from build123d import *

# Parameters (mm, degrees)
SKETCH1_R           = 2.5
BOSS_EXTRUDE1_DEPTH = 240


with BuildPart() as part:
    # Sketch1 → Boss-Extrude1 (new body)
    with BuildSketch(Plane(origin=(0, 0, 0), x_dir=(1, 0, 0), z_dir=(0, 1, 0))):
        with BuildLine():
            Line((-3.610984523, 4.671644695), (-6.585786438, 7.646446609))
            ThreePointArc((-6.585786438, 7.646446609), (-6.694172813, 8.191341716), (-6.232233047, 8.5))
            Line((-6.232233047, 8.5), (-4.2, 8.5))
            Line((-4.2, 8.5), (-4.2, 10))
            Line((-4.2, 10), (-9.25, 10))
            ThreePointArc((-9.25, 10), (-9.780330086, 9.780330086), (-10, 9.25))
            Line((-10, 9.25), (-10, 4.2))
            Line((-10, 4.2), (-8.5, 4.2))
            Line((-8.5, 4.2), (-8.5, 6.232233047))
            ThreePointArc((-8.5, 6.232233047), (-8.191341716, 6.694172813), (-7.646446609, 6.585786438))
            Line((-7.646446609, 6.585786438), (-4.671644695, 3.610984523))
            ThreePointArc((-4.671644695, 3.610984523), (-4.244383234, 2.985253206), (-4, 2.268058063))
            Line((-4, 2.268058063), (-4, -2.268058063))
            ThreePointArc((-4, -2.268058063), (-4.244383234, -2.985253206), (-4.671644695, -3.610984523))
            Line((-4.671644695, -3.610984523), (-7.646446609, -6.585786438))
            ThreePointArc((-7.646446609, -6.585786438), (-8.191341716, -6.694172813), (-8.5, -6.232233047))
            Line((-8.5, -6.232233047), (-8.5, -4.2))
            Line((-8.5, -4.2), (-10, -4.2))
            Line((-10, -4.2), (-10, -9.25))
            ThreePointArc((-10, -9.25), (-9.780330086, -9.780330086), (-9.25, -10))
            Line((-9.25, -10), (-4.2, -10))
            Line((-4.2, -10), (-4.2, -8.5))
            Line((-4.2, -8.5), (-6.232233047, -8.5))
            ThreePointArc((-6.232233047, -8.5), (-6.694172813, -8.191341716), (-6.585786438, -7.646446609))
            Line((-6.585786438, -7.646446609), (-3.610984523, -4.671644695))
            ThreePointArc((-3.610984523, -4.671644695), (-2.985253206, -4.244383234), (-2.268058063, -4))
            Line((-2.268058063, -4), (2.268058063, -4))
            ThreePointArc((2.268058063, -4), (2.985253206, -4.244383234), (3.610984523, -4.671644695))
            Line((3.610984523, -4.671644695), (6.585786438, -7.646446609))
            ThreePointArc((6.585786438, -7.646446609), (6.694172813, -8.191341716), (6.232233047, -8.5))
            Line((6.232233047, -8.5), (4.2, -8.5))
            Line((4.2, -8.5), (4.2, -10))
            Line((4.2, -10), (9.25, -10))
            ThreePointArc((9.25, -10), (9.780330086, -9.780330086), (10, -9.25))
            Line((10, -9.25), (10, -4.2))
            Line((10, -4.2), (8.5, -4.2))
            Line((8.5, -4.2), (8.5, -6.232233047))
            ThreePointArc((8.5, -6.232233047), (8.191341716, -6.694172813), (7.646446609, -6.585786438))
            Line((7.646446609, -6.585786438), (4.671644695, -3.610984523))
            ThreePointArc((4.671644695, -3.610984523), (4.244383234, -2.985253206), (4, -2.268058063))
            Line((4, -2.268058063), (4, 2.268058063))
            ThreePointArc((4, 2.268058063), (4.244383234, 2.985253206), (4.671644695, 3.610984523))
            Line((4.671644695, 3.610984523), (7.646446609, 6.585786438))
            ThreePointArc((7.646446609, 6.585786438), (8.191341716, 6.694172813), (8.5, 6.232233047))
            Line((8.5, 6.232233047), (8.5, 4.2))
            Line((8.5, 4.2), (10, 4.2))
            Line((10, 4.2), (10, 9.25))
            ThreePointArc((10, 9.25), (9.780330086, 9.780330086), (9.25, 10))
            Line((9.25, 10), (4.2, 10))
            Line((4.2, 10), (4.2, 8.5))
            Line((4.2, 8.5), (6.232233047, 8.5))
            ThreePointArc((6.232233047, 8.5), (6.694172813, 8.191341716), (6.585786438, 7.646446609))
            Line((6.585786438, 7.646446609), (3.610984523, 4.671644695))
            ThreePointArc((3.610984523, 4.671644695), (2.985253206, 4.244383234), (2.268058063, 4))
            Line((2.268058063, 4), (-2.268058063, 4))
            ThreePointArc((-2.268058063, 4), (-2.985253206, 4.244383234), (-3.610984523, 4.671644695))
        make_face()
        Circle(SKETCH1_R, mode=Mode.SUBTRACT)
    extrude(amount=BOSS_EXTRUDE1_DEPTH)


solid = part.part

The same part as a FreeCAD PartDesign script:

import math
import FreeCAD as App
import Part
import Sketcher

doc = App.newDocument("Part")
body = doc.addObject("PartDesign::Body", "Body")

# Sketch on XZ plane
sketch1 = body.newObject("Sketcher::SketchObject", "Sketch")
sketch1.AttachmentSupport = (doc.getObject("XZ_Plane"), [""])
sketch1.MapMode = "FlatFace"
sketch1.addGeometry([
    Part.LineSegment(App.Vector(-3.610985, -4.671645, 0), App.Vector(-6.585786, -7.646447, 0)),  # 0
    Part.ArcOfCircle(Part.Circle(App.Vector(-6.232233, -8, 0), App.Vector(0, 0, 1), 0.5), math.radians(135), math.radians(270)),  # 1
    Part.LineSegment(App.Vector(-6.232233, -8.5, 0), App.Vector(-4.2, -8.5, 0)),  # 2
    Part.LineSegment(App.Vector(-4.2, -8.5, 0), App.Vector(-4.2, -10, 0)),  # 3
    Part.LineSegment(App.Vector(-4.2, -10, 0), App.Vector(-9.25, -10, 0)),  # 4
    Part.ArcOfCircle(Part.Circle(App.Vector(-9.25, -9.25, 0), App.Vector(0, 0, 1), 0.75), math.radians(180), math.radians(270)),  # 5
    Part.LineSegment(App.Vector(-10, -9.25, 0), App.Vector(-10, -4.2, 0)),  # 6
    Part.LineSegment(App.Vector(-10, -4.2, 0), App.Vector(-8.5, -4.2, 0)),  # 7
    Part.LineSegment(App.Vector(-8.5, -4.2, 0), App.Vector(-8.5, -6.232233, 0)),  # 8
    Part.ArcOfCircle(Part.Circle(App.Vector(-8, -6.232233, 0), App.Vector(0, 0, 1), 0.5), math.radians(-180), math.radians(-45)),  # 9
    Part.LineSegment(App.Vector(-7.646447, -6.585786, 0), App.Vector(-4.671645, -3.610985, 0)),  # 10
    Part.ArcOfCircle(Part.Circle(App.Vector(-6.755475, -1.729368, 0), App.Vector(0, 0, 1), 2.807638), math.radians(-42.080792), math.radians(-11.061698)),  # 11
    Part.LineSegment(App.Vector(-4, -2.268058, 0), App.Vector(-4, 2.268058, 0)),  # 12
    Part.ArcOfCircle(Part.Circle(App.Vector(-6.755475, 1.729368, 0), App.Vector(0, 0, 1), 2.807638), math.radians(11.061698), math.radians(42.080792)),  # 13
    Part.LineSegment(App.Vector(-4.671645, 3.610985, 0), App.Vector(-7.646447, 6.585786, 0)),  # 14
    Part.ArcOfCircle(Part.Circle(App.Vector(-8, 6.232233, 0), App.Vector(0, 0, 1), 0.5), math.radians(45), math.radians(180)),  # 15
    Part.LineSegment(App.Vector(-8.5, 6.232233, 0), App.Vector(-8.5, 4.2, 0)),  # 16
    Part.LineSegment(App.Vector(-8.5, 4.2, 0), App.Vector(-10, 4.2, 0)),  # 17
    Part.LineSegment(App.Vector(-10, 4.2, 0), App.Vector(-10, 9.25, 0)),  # 18
    Part.ArcOfCircle(Part.Circle(App.Vector(-9.25, 9.25, 0), App.Vector(0, 0, 1), 0.75), math.radians(90), math.radians(180)),  # 19
    Part.LineSegment(App.Vector(-9.25, 10, 0), App.Vector(-4.2, 10, 0)),  # 20
    Part.LineSegment(App.Vector(-4.2, 10, 0), App.Vector(-4.2, 8.5, 0)),  # 21
    Part.LineSegment(App.Vector(-4.2, 8.5, 0), App.Vector(-6.232233, 8.5, 0)),  # 22
    Part.ArcOfCircle(Part.Circle(App.Vector(-6.232233, 8, 0), App.Vector(0, 0, 1), 0.5), math.radians(90), math.radians(225)),  # 23
    Part.LineSegment(App.Vector(-6.585786, 7.646447, 0), App.Vector(-3.610985, 4.671645, 0)),  # 24
    Part.ArcOfCircle(Part.Circle(App.Vector(-1.729368, 6.755475, 0), App.Vector(0, 0, 1), 2.807638), math.radians(-132.080792), math.radians(-101.061698)),  # 25
    Part.LineSegment(App.Vector(-2.268058, 4, 0), App.Vector(2.268058, 4, 0)),  # 26
    Part.ArcOfCircle(Part.Circle(App.Vector(1.729368, 6.755475, 0), App.Vector(0, 0, 1), 2.807638), math.radians(-78.938302), math.radians(-47.919208)),  # 27
    Part.LineSegment(App.Vector(3.610985, 4.671645, 0), App.Vector(6.585786, 7.646447, 0)),  # 28
    Part.ArcOfCircle(Part.Circle(App.Vector(6.232233, 8, 0), App.Vector(0, 0, 1), 0.5), math.radians(-45), math.radians(90)),  # 29
    Part.LineSegment(App.Vector(6.232233, 8.5, 0), App.Vector(4.2, 8.5, 0)),  # 30
    Part.LineSegment(App.Vector(4.2, 8.5, 0), App.Vector(4.2, 10, 0)),  # 31
    Part.LineSegment(App.Vector(4.2, 10, 0), App.Vector(9.25, 10, 0)),  # 32
    Part.ArcOfCircle(Part.Circle(App.Vector(9.25, 9.25, 0), App.Vector(0, 0, 1), 0.75), math.radians(0), math.radians(90)),  # 33
    Part.LineSegment(App.Vector(10, 9.25, 0), App.Vector(10, 4.2, 0)),  # 34
    Part.LineSegment(App.Vector(10, 4.2, 0), App.Vector(8.5, 4.2, 0)),  # 35
    Part.LineSegment(App.Vector(8.5, 4.2, 0), App.Vector(8.5, 6.232233, 0)),  # 36
    Part.ArcOfCircle(Part.Circle(App.Vector(8, 6.232233, 0), App.Vector(0, 0, 1), 0.5), math.radians(0), math.radians(135)),  # 37
    Part.LineSegment(App.Vector(7.646447, 6.585786, 0), App.Vector(4.671645, 3.610985, 0)),  # 38
    Part.ArcOfCircle(Part.Circle(App.Vector(6.755475, 1.729368, 0), App.Vector(0, 0, 1), 2.807638), math.radians(137.919208), math.radians(168.938302)),  # 39
    Part.LineSegment(App.Vector(4, 2.268058, 0), App.Vector(4, -2.268058, 0)),  # 40
    Part.ArcOfCircle(Part.Circle(App.Vector(6.755475, -1.729368, 0), App.Vector(0, 0, 1), 2.807638), math.radians(-168.938302), math.radians(-137.919208)),  # 41
    Part.LineSegment(App.Vector(4.671645, -3.610985, 0), App.Vector(7.646447, -6.585786, 0)),  # 42
    Part.ArcOfCircle(Part.Circle(App.Vector(8, -6.232233, 0), App.Vector(0, 0, 1), 0.5), math.radians(-135), math.radians(0)),  # 43
    Part.LineSegment(App.Vector(8.5, -6.232233, 0), App.Vector(8.5, -4.2, 0)),  # 44
    Part.LineSegment(App.Vector(8.5, -4.2, 0), App.Vector(10, -4.2, 0)),  # 45
    Part.LineSegment(App.Vector(10, -4.2, 0), App.Vector(10, -9.25, 0)),  # 46
    Part.ArcOfCircle(Part.Circle(App.Vector(9.25, -9.25, 0), App.Vector(0, 0, 1), 0.75), math.radians(-90), math.radians(0)),  # 47
    Part.LineSegment(App.Vector(9.25, -10, 0), App.Vector(4.2, -10, 0)),  # 48
    Part.LineSegment(App.Vector(4.2, -10, 0), App.Vector(4.2, -8.5, 0)),  # 49
    Part.LineSegment(App.Vector(4.2, -8.5, 0), App.Vector(6.232233, -8.5, 0)),  # 50
    Part.ArcOfCircle(Part.Circle(App.Vector(6.232233, -8, 0), App.Vector(0, 0, 1), 0.5), math.radians(-90), math.radians(45)),  # 51
    Part.LineSegment(App.Vector(6.585786, -7.646447, 0), App.Vector(3.610985, -4.671645, 0)),  # 52
    Part.ArcOfCircle(Part.Circle(App.Vector(1.729368, -6.755475, 0), App.Vector(0, 0, 1), 2.807638), math.radians(47.919208), math.radians(78.938302)),  # 53
    Part.LineSegment(App.Vector(2.268058, -4, 0), App.Vector(-2.268058, -4, 0)),  # 54
    Part.ArcOfCircle(Part.Circle(App.Vector(-1.729368, -6.755475, 0), App.Vector(0, 0, 1), 2.807638), math.radians(101.061698), math.radians(132.080792)),  # 55
    Part.Circle(App.Vector(0, 0, 0), App.Vector(0, 0, 1), 2.5),  # 56
], False)
sketch1.addConstraint([
    Sketcher.Constraint("Tangent", 0, 2, 1, 1),
    Sketcher.Constraint("Tangent", 1, 2, 2, 1),
    Sketcher.Constraint("Coincident", 2, 2, 3, 1),
    Sketcher.Constraint("Coincident", 3, 2, 4, 1),
    Sketcher.Constraint("Tangent", 4, 2, 5, 2),
    Sketcher.Constraint("Tangent", 5, 1, 6, 1),
    Sketcher.Constraint("Coincident", 6, 2, 7, 1),
    Sketcher.Constraint("Coincident", 7, 2, 8, 1),
    Sketcher.Constraint("Tangent", 8, 2, 9, 1),
    Sketcher.Constraint("Tangent", 9, 2, 10, 1),
    Sketcher.Constraint("Coincident", 10, 2, 11, 1),
    Sketcher.Constraint("Coincident", 11, 2, 12, 1),
    Sketcher.Constraint("Coincident", 12, 2, 13, 1),
    Sketcher.Constraint("Coincident", 13, 2, 14, 1),
    Sketcher.Constraint("Tangent", 14, 2, 15, 1),
    Sketcher.Constraint("Tangent", 15, 2, 16, 1),
    Sketcher.Constraint("Coincident", 16, 2, 17, 1),
    Sketcher.Constraint("Coincident", 17, 2, 18, 1),
    Sketcher.Constraint("Tangent", 18, 2, 19, 2),
    Sketcher.Constraint("Tangent", 19, 1, 20, 1),
    Sketcher.Constraint("Coincident", 20, 2, 21, 1),
    Sketcher.Constraint("Coincident", 21, 2, 22, 1),
    Sketcher.Constraint("Tangent", 22, 2, 23, 1),
    Sketcher.Constraint("Tangent", 23, 2, 24, 1),
    Sketcher.Constraint("Coincident", 24, 2, 25, 1),
    Sketcher.Constraint("Coincident", 25, 2, 26, 1),
    Sketcher.Constraint("Coincident", 26, 2, 27, 1),
    Sketcher.Constraint("Coincident", 27, 2, 28, 1),
    Sketcher.Constraint("Tangent", 28, 2, 29, 1),
    Sketcher.Constraint("Tangent", 29, 2, 30, 1),
    Sketcher.Constraint("Coincident", 30, 2, 31, 1),
    Sketcher.Constraint("Coincident", 31, 2, 32, 1),
    Sketcher.Constraint("Tangent", 32, 2, 33, 2),
    Sketcher.Constraint("Tangent", 33, 1, 34, 1),
    Sketcher.Constraint("Coincident", 34, 2, 35, 1),
    Sketcher.Constraint("Coincident", 35, 2, 36, 1),
    Sketcher.Constraint("Tangent", 36, 2, 37, 1),
    Sketcher.Constraint("Tangent", 37, 2, 38, 1),
    Sketcher.Constraint("Coincident", 38, 2, 39, 1),
    Sketcher.Constraint("Coincident", 39, 2, 40, 1),
    Sketcher.Constraint("Coincident", 40, 2, 41, 1),
    Sketcher.Constraint("Coincident", 41, 2, 42, 1),
    Sketcher.Constraint("Tangent", 42, 2, 43, 1),
    Sketcher.Constraint("Tangent", 43, 2, 44, 1),
    Sketcher.Constraint("Coincident", 44, 2, 45, 1),
    Sketcher.Constraint("Coincident", 45, 2, 46, 1),
    Sketcher.Constraint("Tangent", 46, 2, 47, 2),
    Sketcher.Constraint("Tangent", 47, 1, 48, 1),
    Sketcher.Constraint("Coincident", 48, 2, 49, 1),
    Sketcher.Constraint("Coincident", 49, 2, 50, 1),
    Sketcher.Constraint("Tangent", 50, 2, 51, 1),
    Sketcher.Constraint("Tangent", 51, 2, 52, 1),
    Sketcher.Constraint("Coincident", 52, 2, 53, 1),
    Sketcher.Constraint("Coincident", 53, 2, 54, 1),
    Sketcher.Constraint("Coincident", 54, 2, 55, 1),
    Sketcher.Constraint("Coincident", 55, 2, 0, 1),
    Sketcher.Constraint("Horizontal", 2),
    Sketcher.Constraint("Vertical", 3),
    Sketcher.Constraint("Horizontal", 4),
    Sketcher.Constraint("Vertical", 6),
    Sketcher.Constraint("Horizontal", 7),
    Sketcher.Constraint("Vertical", 8),
    Sketcher.Constraint("Vertical", 12),
    Sketcher.Constraint("Vertical", 16),
    Sketcher.Constraint("Horizontal", 17),
    Sketcher.Constraint("Vertical", 18),
    Sketcher.Constraint("Horizontal", 20),
    Sketcher.Constraint("Vertical", 21),
    Sketcher.Constraint("Horizontal", 22),
    Sketcher.Constraint("Horizontal", 26),
    Sketcher.Constraint("Horizontal", 30),
    Sketcher.Constraint("Vertical", 31),
    Sketcher.Constraint("Horizontal", 32),
    Sketcher.Constraint("Vertical", 34),
    Sketcher.Constraint("Horizontal", 35),
    Sketcher.Constraint("Vertical", 36),
    Sketcher.Constraint("Vertical", 40),
    Sketcher.Constraint("Vertical", 44),
    Sketcher.Constraint("Horizontal", 45),
    Sketcher.Constraint("Vertical", 46),
    Sketcher.Constraint("Horizontal", 48),
    Sketcher.Constraint("Vertical", 49),
    Sketcher.Constraint("Horizontal", 50),
    Sketcher.Constraint("Horizontal", 54),
    Sketcher.Constraint("Coincident", 56, 3, -1, 1),
    Sketcher.Constraint("Equal", 1, 9),
    Sketcher.Constraint("Equal", 11, 13),
    Sketcher.Constraint("Equal", 9, 15),
    Sketcher.Constraint("Equal", 5, 19),
    Sketcher.Constraint("Equal", 15, 23),
    Sketcher.Constraint("Equal", 13, 25),
    Sketcher.Constraint("Equal", 25, 27),
    Sketcher.Constraint("Equal", 23, 29),
    Sketcher.Constraint("Equal", 19, 33),
    Sketcher.Constraint("Equal", 29, 37),
    Sketcher.Constraint("Equal", 27, 39),
    Sketcher.Constraint("Equal", 39, 41),
    Sketcher.Constraint("Equal", 37, 43),
    Sketcher.Constraint("Equal", 33, 47),
    Sketcher.Constraint("Equal", 43, 51),
    Sketcher.Constraint("Equal", 41, 53),
    Sketcher.Constraint("Equal", 53, 55),
    Sketcher.Constraint("Symmetric", 1, 3, 29, 3, -1, 1),
    Sketcher.Constraint("Symmetric", 5, 3, 33, 3, -1, 1),
    Sketcher.Constraint("Symmetric", 9, 3, 37, 3, -1, 1),
    Sketcher.Constraint("Symmetric", 11, 3, 39, 3, -1, 1),
    Sketcher.Constraint("Symmetric", 13, 3, 41, 3, -1, 1),
    Sketcher.Constraint("Symmetric", 15, 3, 43, 3, -1, 1),
    Sketcher.Constraint("Symmetric", 19, 3, 47, 3, -1, 1),
    Sketcher.Constraint("Symmetric", 23, 3, 51, 3, -1, 1),
    Sketcher.Constraint("Symmetric", 25, 3, 53, 3, -1, 1),
    Sketcher.Constraint("Symmetric", 27, 3, 55, 3, -1, 1),
    Sketcher.Constraint("Symmetric", 25, 3, 27, 3, -2),
    Sketcher.Constraint("Symmetric", 23, 3, 29, 3, -2),
    Sketcher.Constraint("Symmetric", 19, 3, 33, 3, -2),
    Sketcher.Constraint("Symmetric", 15, 3, 37, 3, -2),
    Sketcher.Constraint("Symmetric", 13, 3, 39, 3, -2),
    Sketcher.Constraint("Parallel", 0, 10),
    Sketcher.Constraint("Perpendicular", 10, 14),
    Sketcher.Constraint("Parallel", 14, 24),
    Sketcher.Constraint("Perpendicular", 24, 28),
    Sketcher.Constraint("Parallel", 28, 38),
    Sketcher.Constraint("Perpendicular", 38, 42),
    Sketcher.Constraint("Parallel", 42, 52),
    Sketcher.Constraint("Horizontal", 24, 2, 27, 2),
    Sketcher.Constraint("Horizontal", 17, 2, 34, 2),
    Sketcher.Constraint("Horizontal", 12, 2, 39, 2),
    Sketcher.Constraint("Horizontal", 7, 2, 44, 2),
    Sketcher.Constraint("Vertical", 3, 2, 20, 2),
    Sketcher.Constraint("Vertical", 31, 2, 48, 2),
    Sketcher.Constraint("Vertical", 26, 2, 53, 2),
    Sketcher.Constraint("Equal", 22, 30),
    Sketcher.Constraint("Equal", 45, 3),
    Sketcher.Constraint("Equal", 48, 6),
    Sketcher.Constraint("Equal", 50, 8),
    Sketcher.Constraint("Equal", 54, 12),
    Sketcher.Constraint("Equal", 8, 16),
    Sketcher.Constraint("Equal", 0, 10),
    Sketcher.Constraint("Diameter", 56, 5.0),
    Sketcher.Constraint("Radius", 1, 0.5),
    Sketcher.Constraint("Radius", 5, 0.75),
    Sketcher.Constraint("DistanceX", 7, 1, 7, 2, 1.5),
    Sketcher.Constraint("DistanceY", 1, 3, -1, 1, 8.0),
    Sketcher.Constraint("DistanceX", 9, 3, -1, 1, 8.0),
    Sketcher.Constraint("DistanceX", 11, 2, -1, 1, 4.0),
    Sketcher.Constraint("DistanceY", -1, 1, 25, 2, 4.0),
    Sketcher.Constraint("DistanceX", 4, 2, 4, 1, 5.05),
    Sketcher.Constraint("Radius", 11, 2.807638),
    Sketcher.Constraint("DistanceX", 2, 1, 2, 2, 2.032233),
    Sketcher.Constraint("DistanceX", 26, 1, 26, 2, 4.536116),
    Sketcher.Constraint("DistanceY", 11, 3, -1, 1, 1.729368),
])
pad1 = body.newObject("PartDesign::Pad", "Pad")
pad1.Profile = sketch1
pad1.Length = 240
pad1.Reversed = True

doc.recompute()
